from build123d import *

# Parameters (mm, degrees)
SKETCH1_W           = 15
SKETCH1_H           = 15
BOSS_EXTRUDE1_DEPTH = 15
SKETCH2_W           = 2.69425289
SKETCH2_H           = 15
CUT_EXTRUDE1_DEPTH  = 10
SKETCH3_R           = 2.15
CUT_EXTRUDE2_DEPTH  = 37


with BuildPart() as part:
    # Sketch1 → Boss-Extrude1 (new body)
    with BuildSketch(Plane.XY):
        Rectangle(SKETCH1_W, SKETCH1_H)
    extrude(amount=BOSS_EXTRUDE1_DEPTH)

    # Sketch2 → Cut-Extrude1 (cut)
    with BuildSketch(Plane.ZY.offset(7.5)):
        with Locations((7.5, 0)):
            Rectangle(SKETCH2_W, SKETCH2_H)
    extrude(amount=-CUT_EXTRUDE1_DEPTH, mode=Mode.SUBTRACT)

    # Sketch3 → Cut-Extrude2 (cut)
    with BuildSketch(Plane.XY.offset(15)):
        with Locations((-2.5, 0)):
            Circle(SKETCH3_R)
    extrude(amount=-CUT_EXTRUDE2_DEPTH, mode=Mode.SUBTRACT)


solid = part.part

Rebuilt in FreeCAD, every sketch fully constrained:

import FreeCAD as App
import Part
import Sketcher

V = App.Vector
Q = App.Units.Quantity


def add_polygon(sketch, points):
    """Adds a closed chain of lines whose ends are joined by coincident constraints."""
    first, n = sketch.GeometryCount, len(points)
    for a, b in zip(points, points[1:] + points[:1]):
        sketch.addGeometry(Part.LineSegment(App.Vector(*a, 0), App.Vector(*b, 0)), False)
    for i in range(n):
        sketch.addConstraint(Sketcher.Constraint("Coincident", first + i, 2, first + (i + 1) % n, 1))

doc = App.newDocument("Part")
params = doc.addObject("Spreadsheet::Sheet", "Params")
for row, (alias, value) in enumerate([
    ("sketch1_width", "15 mm"),
    ("pad1_length", "15 mm"),
    ("sketch2_width", "15 mm"),
    ("pocket1_length", "10 mm"),
    ("sketch3_diameter", "4.3 mm"),
    ("pocket2_length", "37 mm"),
], start=1):
    params.set(f"A{row}", alias)
    params.set(f"B{row}", "=" + value)
    params.setAlias(f"B{row}", alias)

body = doc.addObject("PartDesign::Body", "Body")

sketch1 = body.newObject("Sketcher::SketchObject", "Sketch")
sketch1.AttachmentSupport = (doc.getObject("XY_Plane"), [""])
sketch1.MapMode = "FlatFace"
add_polygon(sketch1, [(-8, 8), (-8, -8), (8, -8), (8, 8)])
sketch1.addConstraint([
    Sketcher.Constraint("Vertical", 0),
    Sketcher.Constraint("Horizontal", 1),
    Sketcher.Constraint("Vertical", 2),
    Sketcher.Constraint("Horizontal", 3),
    Sketcher.Constraint("Symmetric", 0, 2, 2, 2, -1, 1),
    Sketcher.Constraint("Equal", 3, 0),
    Sketcher.Constraint("DistanceX", 1, 1, 1, 2, Q("15 mm")),
])
sketch1.setExpression("Constraints[10]", "Params.sketch1_width")
pad1 = body.newObject("PartDesign::Pad", "Pad")
pad1.Profile = sketch1
pad1.setExpression("Length", "Params.pad1_length")

sketch2 = body.newObject("Sketcher::SketchObject", "Sketch001")
sketch2.AttachmentSupport = (doc.getObject("YZ_Plane"), [""])
sketch2.MapMode = "FlatFace"
sketch2.AttachmentOffset = App.Placement(V(0, 0, -7.5), App.Rotation())
add_polygon(sketch2, [(7.5, 6.2), (-7.5, 6.2), (-7.5, 8.8), (7.5, 8.8)])
sketch2.addConstraint([
    Sketcher.Constraint("Horizontal", 0),
    Sketcher.Constraint("Vertical", 1),
    Sketcher.Constraint("Horizontal", 2),
    Sketcher.Constraint("Vertical", 3),
    Sketcher.Constraint("DistanceX", 0, 2, 0, 1, Q("15 mm")),
    Sketcher.Constraint("DistanceX", 0, 2, -1, 1, Q("7.5 mm")),
    Sketcher.Constraint("DistanceY", 1, 1, 1, 2, Q("2.694253 mm")),
    Sketcher.Constraint("DistanceY", -1, 1, 0, 2, Q("6.152874 mm")),
])
sketch2.setExpression("Constraints[8]", "Params.sketch2_width")
pocket1 = body.newObject("PartDesign::Pocket", "Pocket")
pocket1.Profile = sketch2
pocket1.setExpression("Length", "Params.pocket1_length")
pocket1.Reversed = True

sketch3 = body.newObject("Sketcher::SketchObject", "Sketch002")
sketch3.AttachmentSupport = (doc.getObject("XY_Plane"), [""])
sketch3.MapMode = "FlatFace"
sketch3.AttachmentOffset = App.Placement(V(0, 0, 15), App.Rotation())
sketch3.addGeometry(Part.Circle(V(-2.5, 0, 0), V(0, 0, 1), 2.1), False)
sketch3.addConstraint([
    Sketcher.Constraint("PointOnObject", 0, 3, -1),
    Sketcher.Constraint("Diameter", 0, Q("4.3 mm")),
    Sketcher.Constraint("DistanceX", 0, 3, -1, 1, Q("2.5 mm")),
])
sketch3.setExpression("Constraints[1]", "Params.sketch3_diameter")
pocket2 = body.newObject("PartDesign::Pocket", "Pocket001")
pocket2.Profile = sketch3
pocket2.setExpression("Length", "Params.pocket2_length")

doc.recompute()
